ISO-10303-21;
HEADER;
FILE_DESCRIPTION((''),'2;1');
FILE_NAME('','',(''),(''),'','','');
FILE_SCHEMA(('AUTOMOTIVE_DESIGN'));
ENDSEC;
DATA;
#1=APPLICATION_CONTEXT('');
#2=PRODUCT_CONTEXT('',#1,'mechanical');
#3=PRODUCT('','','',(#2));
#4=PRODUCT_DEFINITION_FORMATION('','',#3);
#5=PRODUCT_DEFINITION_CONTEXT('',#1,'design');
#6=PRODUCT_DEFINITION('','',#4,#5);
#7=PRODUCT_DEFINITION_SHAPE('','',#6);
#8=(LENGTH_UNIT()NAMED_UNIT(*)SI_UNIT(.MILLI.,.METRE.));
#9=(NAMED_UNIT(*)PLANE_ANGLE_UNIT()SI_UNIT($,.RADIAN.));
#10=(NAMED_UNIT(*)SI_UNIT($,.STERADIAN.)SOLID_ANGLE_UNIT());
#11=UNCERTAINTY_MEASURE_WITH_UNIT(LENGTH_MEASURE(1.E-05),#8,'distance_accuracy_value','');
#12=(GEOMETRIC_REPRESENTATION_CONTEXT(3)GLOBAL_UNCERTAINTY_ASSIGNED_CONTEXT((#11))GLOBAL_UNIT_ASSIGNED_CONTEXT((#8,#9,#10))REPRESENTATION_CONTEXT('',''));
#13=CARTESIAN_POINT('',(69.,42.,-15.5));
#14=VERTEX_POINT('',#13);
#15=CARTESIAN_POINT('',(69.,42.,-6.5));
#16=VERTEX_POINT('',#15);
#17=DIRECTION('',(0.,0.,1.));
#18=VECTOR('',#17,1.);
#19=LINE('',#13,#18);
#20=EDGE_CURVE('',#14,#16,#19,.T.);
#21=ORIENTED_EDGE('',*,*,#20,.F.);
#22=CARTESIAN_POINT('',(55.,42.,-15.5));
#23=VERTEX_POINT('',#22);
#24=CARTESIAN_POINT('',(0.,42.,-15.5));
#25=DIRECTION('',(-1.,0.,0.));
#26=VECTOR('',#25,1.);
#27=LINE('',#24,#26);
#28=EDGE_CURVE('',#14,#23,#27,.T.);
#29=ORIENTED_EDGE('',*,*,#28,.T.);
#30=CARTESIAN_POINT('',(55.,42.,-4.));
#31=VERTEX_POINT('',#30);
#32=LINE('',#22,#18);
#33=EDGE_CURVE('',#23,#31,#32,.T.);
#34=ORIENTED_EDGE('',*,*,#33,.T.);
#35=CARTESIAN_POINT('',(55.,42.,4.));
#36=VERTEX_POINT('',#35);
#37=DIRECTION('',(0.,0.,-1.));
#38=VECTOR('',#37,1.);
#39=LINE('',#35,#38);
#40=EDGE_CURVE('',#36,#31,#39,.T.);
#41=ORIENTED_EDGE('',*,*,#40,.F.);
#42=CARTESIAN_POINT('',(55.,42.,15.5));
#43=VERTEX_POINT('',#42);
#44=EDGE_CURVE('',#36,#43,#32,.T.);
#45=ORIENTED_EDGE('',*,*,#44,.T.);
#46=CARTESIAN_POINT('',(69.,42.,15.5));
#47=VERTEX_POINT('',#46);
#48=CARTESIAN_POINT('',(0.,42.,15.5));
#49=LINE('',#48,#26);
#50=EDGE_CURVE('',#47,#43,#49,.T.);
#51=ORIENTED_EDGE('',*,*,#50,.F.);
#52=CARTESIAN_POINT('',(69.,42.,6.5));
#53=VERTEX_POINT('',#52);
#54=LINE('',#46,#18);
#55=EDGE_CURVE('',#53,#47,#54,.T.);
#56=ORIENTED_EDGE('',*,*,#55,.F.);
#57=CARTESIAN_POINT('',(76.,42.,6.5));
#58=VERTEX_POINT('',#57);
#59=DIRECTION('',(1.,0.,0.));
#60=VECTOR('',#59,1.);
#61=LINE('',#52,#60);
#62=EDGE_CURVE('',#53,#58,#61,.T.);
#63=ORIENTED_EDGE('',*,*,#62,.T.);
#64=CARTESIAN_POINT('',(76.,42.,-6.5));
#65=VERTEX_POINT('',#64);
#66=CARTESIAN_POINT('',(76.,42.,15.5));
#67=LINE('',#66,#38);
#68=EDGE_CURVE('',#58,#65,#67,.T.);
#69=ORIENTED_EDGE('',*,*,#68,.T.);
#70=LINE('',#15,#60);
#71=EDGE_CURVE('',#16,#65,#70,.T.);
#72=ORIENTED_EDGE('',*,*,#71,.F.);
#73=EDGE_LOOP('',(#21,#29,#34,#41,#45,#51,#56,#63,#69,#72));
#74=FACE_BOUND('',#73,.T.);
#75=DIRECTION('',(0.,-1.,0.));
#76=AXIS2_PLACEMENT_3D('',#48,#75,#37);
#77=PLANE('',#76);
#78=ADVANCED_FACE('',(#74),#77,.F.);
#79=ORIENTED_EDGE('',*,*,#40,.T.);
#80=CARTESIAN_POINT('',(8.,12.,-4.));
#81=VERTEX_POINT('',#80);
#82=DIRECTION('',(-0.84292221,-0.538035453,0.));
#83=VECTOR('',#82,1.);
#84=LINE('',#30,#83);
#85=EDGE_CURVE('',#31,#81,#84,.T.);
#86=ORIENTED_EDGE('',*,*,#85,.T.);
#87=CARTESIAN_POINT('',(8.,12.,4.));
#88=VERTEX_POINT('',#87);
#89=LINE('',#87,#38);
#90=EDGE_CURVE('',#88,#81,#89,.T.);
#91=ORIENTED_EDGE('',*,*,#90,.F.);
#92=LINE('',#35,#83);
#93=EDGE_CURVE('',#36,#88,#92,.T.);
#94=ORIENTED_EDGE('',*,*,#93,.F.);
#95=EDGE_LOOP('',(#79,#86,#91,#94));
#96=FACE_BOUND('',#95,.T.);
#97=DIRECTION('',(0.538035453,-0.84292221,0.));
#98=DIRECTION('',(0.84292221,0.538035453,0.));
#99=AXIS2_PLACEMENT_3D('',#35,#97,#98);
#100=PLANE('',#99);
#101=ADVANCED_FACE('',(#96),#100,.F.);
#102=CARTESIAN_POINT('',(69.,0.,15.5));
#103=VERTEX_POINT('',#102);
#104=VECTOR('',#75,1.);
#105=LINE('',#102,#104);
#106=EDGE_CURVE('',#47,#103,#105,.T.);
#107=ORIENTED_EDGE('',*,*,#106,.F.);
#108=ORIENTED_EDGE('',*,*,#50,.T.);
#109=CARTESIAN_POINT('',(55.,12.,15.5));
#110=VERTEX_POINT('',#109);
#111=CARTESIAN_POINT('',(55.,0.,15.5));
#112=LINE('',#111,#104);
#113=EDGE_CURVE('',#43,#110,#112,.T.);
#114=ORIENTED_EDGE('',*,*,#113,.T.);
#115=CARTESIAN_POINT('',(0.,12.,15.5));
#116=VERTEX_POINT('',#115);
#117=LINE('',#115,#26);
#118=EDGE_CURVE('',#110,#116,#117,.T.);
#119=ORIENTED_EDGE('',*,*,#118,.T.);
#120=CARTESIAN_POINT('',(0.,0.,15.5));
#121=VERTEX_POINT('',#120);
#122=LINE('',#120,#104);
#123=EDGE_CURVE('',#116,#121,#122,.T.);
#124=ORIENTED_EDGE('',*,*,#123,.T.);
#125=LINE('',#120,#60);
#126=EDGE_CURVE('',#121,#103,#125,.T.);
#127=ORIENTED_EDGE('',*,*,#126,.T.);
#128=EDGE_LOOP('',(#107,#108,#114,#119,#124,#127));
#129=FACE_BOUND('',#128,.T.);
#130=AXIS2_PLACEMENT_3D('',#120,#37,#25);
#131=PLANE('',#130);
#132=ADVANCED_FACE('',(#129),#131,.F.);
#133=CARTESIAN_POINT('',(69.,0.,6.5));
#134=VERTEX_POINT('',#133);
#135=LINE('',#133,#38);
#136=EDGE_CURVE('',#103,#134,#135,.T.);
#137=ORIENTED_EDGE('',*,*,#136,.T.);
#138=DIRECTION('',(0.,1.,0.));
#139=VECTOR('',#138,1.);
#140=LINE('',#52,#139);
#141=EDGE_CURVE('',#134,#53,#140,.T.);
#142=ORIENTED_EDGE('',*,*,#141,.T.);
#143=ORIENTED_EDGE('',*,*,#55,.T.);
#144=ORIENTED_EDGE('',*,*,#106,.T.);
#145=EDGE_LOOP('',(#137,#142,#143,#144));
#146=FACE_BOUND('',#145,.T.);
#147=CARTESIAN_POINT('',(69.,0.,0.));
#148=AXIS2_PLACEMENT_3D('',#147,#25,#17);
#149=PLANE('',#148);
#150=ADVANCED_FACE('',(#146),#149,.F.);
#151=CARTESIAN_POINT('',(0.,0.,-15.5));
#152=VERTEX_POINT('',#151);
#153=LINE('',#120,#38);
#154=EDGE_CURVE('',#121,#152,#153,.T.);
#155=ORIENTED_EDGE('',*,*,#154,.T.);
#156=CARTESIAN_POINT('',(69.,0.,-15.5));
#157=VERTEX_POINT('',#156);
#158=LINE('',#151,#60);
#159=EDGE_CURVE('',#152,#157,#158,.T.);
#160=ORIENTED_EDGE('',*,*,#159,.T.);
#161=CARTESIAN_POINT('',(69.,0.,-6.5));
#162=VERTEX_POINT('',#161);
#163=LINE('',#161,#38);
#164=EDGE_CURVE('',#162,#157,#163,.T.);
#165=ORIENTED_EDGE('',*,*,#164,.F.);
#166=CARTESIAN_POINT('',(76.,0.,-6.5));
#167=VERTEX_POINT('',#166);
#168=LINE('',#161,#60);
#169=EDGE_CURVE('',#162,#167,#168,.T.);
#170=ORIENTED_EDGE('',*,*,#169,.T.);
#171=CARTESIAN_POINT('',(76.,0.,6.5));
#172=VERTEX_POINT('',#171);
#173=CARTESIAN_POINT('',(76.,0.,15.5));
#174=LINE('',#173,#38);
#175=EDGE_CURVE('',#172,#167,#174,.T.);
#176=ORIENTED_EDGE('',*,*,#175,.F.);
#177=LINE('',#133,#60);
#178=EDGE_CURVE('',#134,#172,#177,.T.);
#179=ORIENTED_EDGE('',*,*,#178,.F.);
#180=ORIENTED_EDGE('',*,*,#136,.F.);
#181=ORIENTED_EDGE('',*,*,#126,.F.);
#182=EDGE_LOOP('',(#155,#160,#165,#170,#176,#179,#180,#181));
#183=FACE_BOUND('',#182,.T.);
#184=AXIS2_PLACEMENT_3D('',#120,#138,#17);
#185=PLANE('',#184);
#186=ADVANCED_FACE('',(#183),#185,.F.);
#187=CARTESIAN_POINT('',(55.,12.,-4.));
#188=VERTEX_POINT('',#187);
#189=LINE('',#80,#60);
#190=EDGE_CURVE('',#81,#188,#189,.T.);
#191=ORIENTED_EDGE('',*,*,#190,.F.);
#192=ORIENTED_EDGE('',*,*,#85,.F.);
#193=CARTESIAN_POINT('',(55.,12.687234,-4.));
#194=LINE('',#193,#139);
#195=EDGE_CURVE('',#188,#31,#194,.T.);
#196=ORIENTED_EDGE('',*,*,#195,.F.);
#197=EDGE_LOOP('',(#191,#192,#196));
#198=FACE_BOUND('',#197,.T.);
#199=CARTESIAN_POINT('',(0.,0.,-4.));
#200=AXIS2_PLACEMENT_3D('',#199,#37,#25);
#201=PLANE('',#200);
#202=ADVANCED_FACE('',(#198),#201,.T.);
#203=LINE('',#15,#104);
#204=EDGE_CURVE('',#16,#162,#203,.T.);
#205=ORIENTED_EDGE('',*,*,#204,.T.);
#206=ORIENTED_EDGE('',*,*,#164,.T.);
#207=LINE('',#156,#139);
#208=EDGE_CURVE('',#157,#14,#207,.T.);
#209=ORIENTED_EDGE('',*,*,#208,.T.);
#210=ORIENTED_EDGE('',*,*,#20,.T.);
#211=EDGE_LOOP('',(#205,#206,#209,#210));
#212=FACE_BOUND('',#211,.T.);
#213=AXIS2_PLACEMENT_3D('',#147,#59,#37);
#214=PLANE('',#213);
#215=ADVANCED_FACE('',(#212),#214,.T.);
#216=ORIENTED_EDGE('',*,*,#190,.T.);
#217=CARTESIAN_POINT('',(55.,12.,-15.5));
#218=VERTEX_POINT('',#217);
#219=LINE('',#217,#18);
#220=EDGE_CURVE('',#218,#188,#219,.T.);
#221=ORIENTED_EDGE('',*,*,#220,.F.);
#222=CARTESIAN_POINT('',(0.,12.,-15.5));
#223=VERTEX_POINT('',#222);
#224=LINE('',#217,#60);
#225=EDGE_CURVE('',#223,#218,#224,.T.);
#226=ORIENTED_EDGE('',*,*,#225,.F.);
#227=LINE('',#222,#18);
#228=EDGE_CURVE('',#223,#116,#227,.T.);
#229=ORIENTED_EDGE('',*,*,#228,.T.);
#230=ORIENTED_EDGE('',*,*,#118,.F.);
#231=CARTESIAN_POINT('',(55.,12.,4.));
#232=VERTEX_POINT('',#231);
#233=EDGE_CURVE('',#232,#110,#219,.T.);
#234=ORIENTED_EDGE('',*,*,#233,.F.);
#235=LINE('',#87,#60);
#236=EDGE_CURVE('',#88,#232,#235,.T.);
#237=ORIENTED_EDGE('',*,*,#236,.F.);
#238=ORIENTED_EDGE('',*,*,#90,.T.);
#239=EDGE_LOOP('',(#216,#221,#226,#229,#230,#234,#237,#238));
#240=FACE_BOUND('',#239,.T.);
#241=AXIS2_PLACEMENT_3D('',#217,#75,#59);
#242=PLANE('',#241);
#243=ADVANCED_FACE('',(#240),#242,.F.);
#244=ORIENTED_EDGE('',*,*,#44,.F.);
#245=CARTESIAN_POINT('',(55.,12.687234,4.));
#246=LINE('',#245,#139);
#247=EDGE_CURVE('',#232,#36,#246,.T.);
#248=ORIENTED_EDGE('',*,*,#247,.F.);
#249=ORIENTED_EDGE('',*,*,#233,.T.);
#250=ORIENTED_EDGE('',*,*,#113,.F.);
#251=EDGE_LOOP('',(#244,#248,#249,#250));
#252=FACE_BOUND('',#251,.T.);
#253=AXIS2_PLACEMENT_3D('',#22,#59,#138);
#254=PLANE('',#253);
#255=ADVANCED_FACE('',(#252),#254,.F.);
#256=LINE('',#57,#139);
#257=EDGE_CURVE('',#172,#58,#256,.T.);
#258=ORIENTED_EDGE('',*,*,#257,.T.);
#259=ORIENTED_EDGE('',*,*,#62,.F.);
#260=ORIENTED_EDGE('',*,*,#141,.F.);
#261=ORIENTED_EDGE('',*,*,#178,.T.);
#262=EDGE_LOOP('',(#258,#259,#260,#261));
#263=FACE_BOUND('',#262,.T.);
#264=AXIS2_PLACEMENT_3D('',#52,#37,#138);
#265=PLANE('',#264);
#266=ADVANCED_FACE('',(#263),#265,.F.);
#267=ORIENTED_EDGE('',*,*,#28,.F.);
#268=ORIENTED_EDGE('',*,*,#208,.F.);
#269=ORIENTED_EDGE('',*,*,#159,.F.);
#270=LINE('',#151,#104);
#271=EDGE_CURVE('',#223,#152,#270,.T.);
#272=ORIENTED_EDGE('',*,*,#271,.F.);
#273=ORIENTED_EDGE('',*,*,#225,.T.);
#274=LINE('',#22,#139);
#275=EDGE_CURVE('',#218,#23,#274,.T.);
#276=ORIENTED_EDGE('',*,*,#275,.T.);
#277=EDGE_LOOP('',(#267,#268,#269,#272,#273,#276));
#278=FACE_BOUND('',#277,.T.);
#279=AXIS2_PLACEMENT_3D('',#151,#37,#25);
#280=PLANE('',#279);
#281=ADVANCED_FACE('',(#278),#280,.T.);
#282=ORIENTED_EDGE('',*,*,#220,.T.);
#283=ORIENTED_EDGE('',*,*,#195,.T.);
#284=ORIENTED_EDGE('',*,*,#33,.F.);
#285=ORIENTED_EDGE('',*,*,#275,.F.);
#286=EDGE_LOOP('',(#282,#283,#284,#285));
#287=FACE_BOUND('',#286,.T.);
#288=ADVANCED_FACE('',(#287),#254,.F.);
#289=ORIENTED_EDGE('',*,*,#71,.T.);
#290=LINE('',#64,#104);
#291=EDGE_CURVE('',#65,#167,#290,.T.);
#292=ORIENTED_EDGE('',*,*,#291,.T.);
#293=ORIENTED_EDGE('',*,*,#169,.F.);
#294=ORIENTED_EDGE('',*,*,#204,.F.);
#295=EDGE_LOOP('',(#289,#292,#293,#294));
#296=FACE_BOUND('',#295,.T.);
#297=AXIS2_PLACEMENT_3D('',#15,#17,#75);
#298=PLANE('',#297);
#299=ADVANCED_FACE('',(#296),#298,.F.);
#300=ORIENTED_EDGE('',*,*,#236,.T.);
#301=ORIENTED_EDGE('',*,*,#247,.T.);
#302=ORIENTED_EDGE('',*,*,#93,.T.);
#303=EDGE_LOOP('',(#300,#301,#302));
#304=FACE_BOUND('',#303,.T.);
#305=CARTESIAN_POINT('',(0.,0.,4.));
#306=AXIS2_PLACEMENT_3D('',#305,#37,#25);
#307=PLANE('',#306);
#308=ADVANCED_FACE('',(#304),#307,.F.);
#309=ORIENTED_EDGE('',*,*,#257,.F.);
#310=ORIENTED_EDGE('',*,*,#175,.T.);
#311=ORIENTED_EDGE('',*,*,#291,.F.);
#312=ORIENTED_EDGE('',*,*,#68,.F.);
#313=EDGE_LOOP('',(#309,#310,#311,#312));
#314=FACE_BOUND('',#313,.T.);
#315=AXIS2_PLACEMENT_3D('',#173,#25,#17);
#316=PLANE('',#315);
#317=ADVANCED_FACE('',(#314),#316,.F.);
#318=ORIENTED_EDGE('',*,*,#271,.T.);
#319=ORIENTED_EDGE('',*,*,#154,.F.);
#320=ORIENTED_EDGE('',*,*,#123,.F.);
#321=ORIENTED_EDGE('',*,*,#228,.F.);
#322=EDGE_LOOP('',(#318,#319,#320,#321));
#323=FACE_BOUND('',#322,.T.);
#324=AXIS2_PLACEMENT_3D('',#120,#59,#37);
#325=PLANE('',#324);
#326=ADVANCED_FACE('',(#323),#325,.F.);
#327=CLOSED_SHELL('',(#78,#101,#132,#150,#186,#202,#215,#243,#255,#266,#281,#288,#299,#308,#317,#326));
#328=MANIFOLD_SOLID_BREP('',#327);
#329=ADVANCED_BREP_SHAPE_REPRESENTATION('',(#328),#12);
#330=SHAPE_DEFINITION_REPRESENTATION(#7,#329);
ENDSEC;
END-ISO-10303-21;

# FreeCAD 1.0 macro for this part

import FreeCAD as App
import Part
import Sketcher


def add_polygon(sketch, points):
    """Adds a closed chain of lines whose ends are joined by coincident constraints."""
    first, n = sketch.GeometryCount, len(points)
    for a, b in zip(points, points[1:] + points[:1]):
        sketch.addGeometry(Part.LineSegment(App.Vector(*a, 0), App.Vector(*b, 0)), False)
    for i in range(n):
        sketch.addConstraint(Sketcher.Constraint("Coincident", first + i, 2, first + (i + 1) % n, 1))

doc = App.newDocument("Part")
params = doc.addObject("Spreadsheet::Sheet", "Params")
for row, (alias, value) in enumerate([
    ("sketch1_width", "76 mm"),
    ("sketch1_height", "42 mm"),
    ("pad1_length", "31 mm"),
    ("sketch2_width", "42 mm"),
    ("sketch2_height", "9 mm"),
    ("pocket1_length", "7 mm"),
    ("sketch3_width", "55 mm"),
    ("sketch3_height", "30 mm"),
    ("sketch4_width", "47 mm"),
    ("sketch4_height", "30 mm"),
    ("pad2_length", "8 mm"),
], start=1):
    params.set(f"A{row}", alias)
    params.set(f"B{row}", "=" + value)
    params.setAlias(f"B{row}", alias)

body = doc.addObject("PartDesign::Body", "Body")

sketch1 = doc.addObject("Sketcher::SketchObject", "Sketch")
body.addObject(sketch1)
sketch1.AttachmentSupport = (doc.XY_Plane, [""])
sketch1.MapMode = "FlatFace"
add_polygon(sketch1, [(0, 42), (0, 0), (76, 0), (76, 42)])
sketch1.addConstraint([
    Sketcher.Constraint("Vertical", 0),
    Sketcher.Constraint("Horizontal", 1),
    Sketcher.Constraint("Vertical", 2),
    Sketcher.Constraint("Horizontal", 3),
    Sketcher.Constraint("Coincident", 0, 2, -1, 1),
    Sketcher.Constraint("DistanceX", 1, 1, 1, 2, 76.0),
    Sketcher.Constraint("DistanceY", 0, 2, 0, 1, 42.0),
])
sketch1.setExpression("Constraints[9]", "Params.sketch1_width")
sketch1.setExpression("Constraints[10]", "Params.sketch1_height")
pad1 = doc.addObject("PartDesign::Pad", "Pad")
body.addObject(pad1)
pad1.Profile = sketch1
pad1.setExpression("Length", "Params.pad1_length")
pad1.Midplane = True

sketch2 = doc.addObject("Sketcher::SketchObject", "Sketch001")
body.addObject(sketch2)
sketch2.AttachmentSupport = (doc.YZ_Plane, [""])
sketch2.MapMode = "FlatFace"
sketch2.AttachmentOffset = App.Placement(App.Vector(0, 0, 76), App.Rotation())
add_polygon(sketch2, [(42, 15.5), (0, 15.5), (0, 6.5), (42, 6.5)])
add_polygon(sketch2, [(42, -6.5), (0, -6.5), (0, -15.5), (42, -15.5)])
sketch2.addConstraint([
    Sketcher.Constraint("Horizontal", 0),
    Sketcher.Constraint("Vertical", 1),
    Sketcher.Constraint("Horizontal", 2),
    Sketcher.Constraint("Vertical", 3),
    Sketcher.Constraint("Horizontal", 4),
    Sketcher.Constraint("Vertical", 5),
    Sketcher.Constraint("Horizontal", 6),
    Sketcher.Constraint("Vertical", 7),
    Sketcher.Constraint("Symmetric", 1, 2, 4, 2, -1, 1),
    Sketcher.Constraint("Symmetric", 0, 2, 5, 2, -1),
    Sketcher.Constraint("Vertical", 3, 2, 6, 2),
    Sketcher.Constraint("DistanceX", 0, 2, 0, 1, 42.0),
    Sketcher.Constraint("DistanceY", 1, 2, 1, 1, 9.0),
    Sketcher.Constraint("DistanceY", 4, 2, 1, 2, 13.0),
])
sketch2.setExpression("Constraints[19]", "Params.sketch2_width")
sketch2.setExpression("Constraints[20]", "Params.sketch2_height")
pocket1 = doc.addObject("PartDesign::Pocket", "Pocket")
body.addObject(pocket1)
pocket1.Profile = sketch2
pocket1.setExpression("Length", "Params.pocket1_length")

sketch3 = doc.addObject("Sketcher::SketchObject", "Sketch002")
body.addObject(sketch3)
sketch3.AttachmentSupport = (doc.XY_Plane, [""])
sketch3.MapMode = "FlatFace"
sketch3.AttachmentOffset = App.Placement(App.Vector(0, 0, 15.5), App.Rotation())
add_polygon(sketch3, [(0, 42), (0, 12), (55, 12), (55, 42)])
sketch3.addConstraint([
    Sketcher.Constraint("Vertical", 0),
    Sketcher.Constraint("Horizontal", 1),
    Sketcher.Constraint("Vertical", 2),
    Sketcher.Constraint("Horizontal", 3),
    Sketcher.Constraint("PointOnObject", 0, 2, -2),
    Sketcher.Constraint("DistanceX", 1, 1, 1, 2, 55.0),
    Sketcher.Constraint("DistanceY", 0, 2, 0, 1, 30.0),
    Sketcher.Constraint("DistanceY", -1, 1, 0, 2, 12.0),
])
sketch3.setExpression("Constraints[9]", "Params.sketch3_width")
sketch3.setExpression("Constraints[10]", "Params.sketch3_height")
pocket2 = doc.addObject("PartDesign::Pocket", "Pocket001")
body.addObject(pocket2)
pocket2.Profile = sketch3
pocket2.Type = "ThroughAll"
pocket2.Midplane = True

sketch4 = doc.addObject("Sketcher::SketchObject", "Sketch003")
body.addObject(sketch4)
sketch4.AttachmentSupport = (doc.XY_Plane, [""])
sketch4.MapMode = "FlatFace"
add_polygon(sketch4, [(55, 42), (8, 12), (55, 12)])
sketch4.addConstraint([
    Sketcher.Constraint("Horizontal", 1),
    Sketcher.Constraint("Vertical", 2),
    Sketcher.Constraint("DistanceX", 1, 1, 1, 2, 47.0),
    Sketcher.Constraint("DistanceY", 2, 1, 2, 2, 30.0),
    Sketcher.Constraint("DistanceX", -1, 1, 0, 2, 8.0),
    Sketcher.Constraint("DistanceY", -1, 1, 0, 2, 12.0),
])
sketch4.setExpression("Constraints[5]", "Params.sketch4_width")
sketch4.setExpression("Constraints[6]", "Params.sketch4_height")
pad2 = doc.addObject("PartDesign::Pad", "Pad001")
body.addObject(pad2)
pad2.Profile = sketch4
pad2.setExpression("Length", "Params.pad2_length")
pad2.Midplane = True

doc.recompute()
